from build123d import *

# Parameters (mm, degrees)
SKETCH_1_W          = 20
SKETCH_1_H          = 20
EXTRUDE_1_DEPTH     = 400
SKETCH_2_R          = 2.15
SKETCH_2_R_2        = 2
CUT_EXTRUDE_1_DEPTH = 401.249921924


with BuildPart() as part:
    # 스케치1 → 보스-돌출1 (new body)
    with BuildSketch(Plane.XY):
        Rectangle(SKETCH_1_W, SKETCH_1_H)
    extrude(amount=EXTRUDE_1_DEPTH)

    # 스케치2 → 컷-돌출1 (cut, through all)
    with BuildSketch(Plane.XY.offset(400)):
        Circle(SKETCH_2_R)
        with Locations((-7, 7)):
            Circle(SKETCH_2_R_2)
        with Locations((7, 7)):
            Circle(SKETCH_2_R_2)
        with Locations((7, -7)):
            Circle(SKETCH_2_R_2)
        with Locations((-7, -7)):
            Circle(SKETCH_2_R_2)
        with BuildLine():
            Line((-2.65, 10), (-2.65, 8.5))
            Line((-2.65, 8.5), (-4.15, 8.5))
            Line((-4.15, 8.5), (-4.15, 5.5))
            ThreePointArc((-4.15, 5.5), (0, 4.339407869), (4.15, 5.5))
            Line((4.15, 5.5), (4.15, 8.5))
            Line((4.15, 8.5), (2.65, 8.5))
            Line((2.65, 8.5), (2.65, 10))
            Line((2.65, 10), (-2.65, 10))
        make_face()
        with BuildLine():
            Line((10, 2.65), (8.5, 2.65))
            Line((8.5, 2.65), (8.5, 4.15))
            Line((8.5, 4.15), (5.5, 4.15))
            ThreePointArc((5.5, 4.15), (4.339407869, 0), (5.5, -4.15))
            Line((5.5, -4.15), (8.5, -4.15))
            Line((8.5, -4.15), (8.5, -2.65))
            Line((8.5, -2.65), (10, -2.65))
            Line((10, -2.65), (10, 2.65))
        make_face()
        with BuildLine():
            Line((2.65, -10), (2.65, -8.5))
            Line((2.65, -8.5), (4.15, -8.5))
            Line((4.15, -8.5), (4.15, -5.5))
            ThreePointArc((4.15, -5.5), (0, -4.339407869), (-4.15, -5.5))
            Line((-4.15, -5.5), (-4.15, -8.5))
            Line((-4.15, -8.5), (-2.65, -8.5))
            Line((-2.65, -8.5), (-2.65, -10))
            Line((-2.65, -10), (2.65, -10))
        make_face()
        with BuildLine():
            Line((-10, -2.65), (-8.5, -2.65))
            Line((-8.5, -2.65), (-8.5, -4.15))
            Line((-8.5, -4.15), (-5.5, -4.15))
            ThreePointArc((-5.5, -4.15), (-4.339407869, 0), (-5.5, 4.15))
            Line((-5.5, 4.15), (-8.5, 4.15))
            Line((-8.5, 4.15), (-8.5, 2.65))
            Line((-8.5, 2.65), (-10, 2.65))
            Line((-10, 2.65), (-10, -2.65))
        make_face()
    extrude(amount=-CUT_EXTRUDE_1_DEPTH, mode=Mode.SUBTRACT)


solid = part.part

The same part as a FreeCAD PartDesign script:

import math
import FreeCAD as App
import Part
import Sketcher


def add_polygon(sketch, points):
    """Adds a closed chain of lines whose ends are joined by coincident constraints."""
    first, n = sketch.GeometryCount, len(points)
    for a, b in zip(points, points[1:] + points[:1]):
        sketch.addGeometry(Part.LineSegment(App.Vector(*a, 0), App.Vector(*b, 0)), False)
    for i in range(n):
        sketch.addConstraint(Sketcher.Constraint("Coincident", first + i, 2, first + (i + 1) % n, 1))

doc = App.newDocument("Part")
body = doc.addObject("PartDesign::Body", "Body")

# Sketch on XY plane
sketch1 = body.newObject("Sketcher::SketchObject", "Sketch")
sketch1.AttachmentSupport = (doc.getObject("XY_Plane"), [""])
sketch1.MapMode = "FlatFace"
add_polygon(sketch1, [(-10, 10), (-10, -10), (10, -10), (10, 10)])  # lines 0-3
sketch1.addConstraint([
    Sketcher.Constraint("Vertical", 0),
    Sketcher.Constraint("Horizontal", 1),
    Sketcher.Constraint("Vertical", 2),
    Sketcher.Constraint("Horizontal", 3),
    Sketcher.Constraint("Symmetric", 0, 2, 2, 2, -1, 1),
    Sketcher.Constraint("Equal", 3, 0),
    Sketcher.Constraint("DistanceX", 1, 1, 1, 2, 20.0),
])
pad1 = body.newObject("PartDesign::Pad", "Pad")
pad1.Profile = sketch1
pad1.Length = 400

# Sketch on XY plane
sketch2 = body.newObject("Sketcher::SketchObject", "Sketch001")
sketch2.AttachmentSupport = (doc.getObject("XY_Plane"), [""])
sketch2.MapMode = "FlatFace"
sketch2.AttachmentOffset = App.Placement(App.Vector(0, 0, 400), App.Rotation())
sketch2.addGeometry([
    Part.Circle(App.Vector(0, 0, 0), App.Vector(0, 0, 1), 2.1),  # 0
    Part.Circle(App.Vector(-7, 7, 0), App.Vector(0, 0, 1), 2),  # 1
    Part.Circle(App.Vector(7, 7, 0), App.Vector(0, 0, 1), 2),  # 2
    Part.Circle(App.Vector(7, -7, 0), App.Vector(0, 0, 1), 2),  # 3
    Part.Circle(App.Vector(-7, -7, 0), App.Vector(0, 0, 1), 2),  # 4
    Part.LineSegment(App.Vector(-2.6, 10, 0), App.Vector(-2.6, 8.5, 0)),  # 5
    Part.LineSegment(App.Vector(-2.6, 8.5, 0), App.Vector(-4.2, 8.5, 0)),  # 6
    Part.LineSegment(App.Vector(-4.2, 8.5, 0), App.Vector(-4.2, 5.5, 0)),  # 7
    Part.ArcOfCircle(Part.Circle(App.Vector(0, 12.3, 0), App.Vector(0, 0, 1), 8), math.radians(-121), math.radians(-59)),  # 8
    Part.LineSegment(App.Vector(4.2, 5.5, 0), App.Vector(4.2, 8.5, 0)),  # 9
    Part.LineSegment(App.Vector(4.2, 8.5, 0), App.Vector(2.6, 8.5, 0)),  # 10
    Part.LineSegment(App.Vector(2.6, 8.5, 0), App.Vector(2.6, 10, 0)),  # 11
    Part.LineSegment(App.Vector(2.6, 10, 0), App.Vector(-2.6, 10, 0)),  # 12
    Part.LineSegment(App.Vector(10, 2.6, 0), App.Vector(8.5, 2.6, 0)),  # 13
    Part.LineSegment(App.Vector(8.5, 2.6, 0), App.Vector(8.5, 4.2, 0)),  # 14
    Part.LineSegment(App.Vector(8.5, 4.2, 0), App.Vector(5.5, 4.2, 0)),  # 15
    Part.ArcOfCircle(Part.Circle(App.Vector(12.3, 0, 0), App.Vector(0, 0, 1), 8), math.radians(149), math.radians(211)),  # 16
    Part.LineSegment(App.Vector(5.5, -4.2, 0), App.Vector(8.5, -4.2, 0)),  # 17
    Part.LineSegment(App.Vector(8.5, -4.2, 0), App.Vector(8.5, -2.6, 0)),  # 18
    Part.LineSegment(App.Vector(8.5, -2.6, 0), App.Vector(10, -2.6, 0)),  # 19
    Part.LineSegment(App.Vector(10, -2.6, 0), App.Vector(10, 2.6, 0)),  # 20
    Part.LineSegment(App.Vector(2.6, -10, 0), App.Vector(2.6, -8.5, 0)),  # 21
    Part.LineSegment(App.Vector(2.6, -8.5, 0), App.Vector(4.2, -8.5, 0)),  # 22
    Part.LineSegment(App.Vector(4.2, -8.5, 0), App.Vector(4.2, -5.5, 0)),  # 23
    Part.ArcOfCircle(Part.Circle(App.Vector(0, -12.3, 0), App.Vector(0, 0, 1), 8), math.radians(59), math.radians(121)),  # 24
    Part.LineSegment(App.Vector(-4.2, -5.5, 0), App.Vector(-4.2, -8.5, 0)),  # 25
    Part.LineSegment(App.Vector(-4.2, -8.5, 0), App.Vector(-2.6, -8.5, 0)),  # 26
    Part.LineSegment(App.Vector(-2.6, -8.5, 0), App.Vector(-2.6, -10, 0)),  # 27
    Part.LineSegment(App.Vector(-2.6, -10, 0), App.Vector(2.6, -10, 0)),  # 28
    Part.LineSegment(App.Vector(-10, -2.6, 0), App.Vector(-8.5, -2.6, 0)),  # 29
    Part.LineSegment(App.Vector(-8.5, -2.6, 0), App.Vector(-8.5, -4.2, 0)),  # 30
    Part.LineSegment(App.Vector(-8.5, -4.2, 0), App.Vector(-5.5, -4.2, 0)),  # 31
    Part.ArcOfCircle(Part.Circle(App.Vector(-12.3, 0, 0), App.Vector(0, 0, 1), 8), math.radians(-31), math.radians(31)),  # 32
    Part.LineSegment(App.Vector(-5.5, 4.2, 0), App.Vector(-8.5, 4.2, 0)),  # 33
    Part.LineSegment(App.Vector(-8.5, 4.2, 0), App.Vector(-8.5, 2.6, 0)),  # 34
    Part.LineSegment(App.Vector(-8.5, 2.6, 0), App.Vector(-10, 2.6, 0)),  # 35
    Part.LineSegment(App.Vector(-10, 2.6, 0), App.Vector(-10, -2.6, 0)),  # 36
], False)
sketch2.addConstraint([
    Sketcher.Constraint("Coincident", 5, 2, 6, 1),
    Sketcher.Constraint("Coincident", 6, 2, 7, 1),
    Sketcher.Constraint("Coincident", 7, 2, 8, 1),
    Sketcher.Constraint("Coincident", 8, 2, 9, 1),
    Sketcher.Constraint("Coincident", 9, 2, 10, 1),
    Sketcher.Constraint("Coincident", 10, 2, 11, 1),
    Sketcher.Constraint("Coincident", 11, 2, 12, 1),
    Sketcher.Constraint("Coincident", 12, 2, 5, 1),
    Sketcher.Constraint("Coincident", 13, 2, 14, 1),
    Sketcher.Constraint("Coincident", 14, 2, 15, 1),
    Sketcher.Constraint("Coincident", 15, 2, 16, 1),
    Sketcher.Constraint("Coincident", 16, 2, 17, 1),
    Sketcher.Constraint("Coincident", 17, 2, 18, 1),
    Sketcher.Constraint("Coincident", 18, 2, 19, 1),
    Sketcher.Constraint("Coincident", 19, 2, 20, 1),
    Sketcher.Constraint("Coincident", 20, 2, 13, 1),
    Sketcher.Constraint("Coincident", 21, 2, 22, 1),
    Sketcher.Constraint("Coincident", 22, 2, 23, 1),
    Sketcher.Constraint("Coincident", 23, 2, 24, 1),
    Sketcher.Constraint("Coincident", 24, 2, 25, 1),
    Sketcher.Constraint("Coincident", 25, 2, 26, 1),
    Sketcher.Constraint("Coincident", 26, 2, 27, 1),
    Sketcher.Constraint("Coincident", 27, 2, 28, 1),
    Sketcher.Constraint("Coincident", 28, 2, 21, 1),
    Sketcher.Constraint("Coincident", 29, 2, 30, 1),
    Sketcher.Constraint("Coincident", 30, 2, 31, 1),
    Sketcher.Constraint("Coincident", 31, 2, 32, 1),
    Sketcher.Constraint("Coincident", 32, 2, 33, 1),
    Sketcher.Constraint("Coincident", 33, 2, 34, 1),
    Sketcher.Constraint("Coincident", 34, 2, 35, 1),
    Sketcher.Constraint("Coincident", 35, 2, 36, 1),
    Sketcher.Constraint("Coincident", 36, 2, 29, 1),
    Sketcher.Constraint("Vertical", 5),
    Sketcher.Constraint("Horizontal", 6),
    Sketcher.Constraint("Vertical", 7),
    Sketcher.Constraint("Vertical", 9),
    Sketcher.Constraint("Horizontal", 10),
    Sketcher.Constraint("Vertical", 11),
    Sketcher.Constraint("Horizontal", 12),
    Sketcher.Constraint("Horizontal", 13),
    Sketcher.Constraint("Vertical", 14),
    Sketcher.Constraint("Horizontal", 15),
    Sketcher.Constraint("Horizontal", 17),
    Sketcher.Constraint("Vertical", 18),
    Sketcher.Constraint("Horizontal", 19),
    Sketcher.Constraint("Vertical", 20),
    Sketcher.Constraint("Vertical", 21),
    Sketcher.Constraint("Horizontal", 22),
    Sketcher.Constraint("Vertical", 23),
    Sketcher.Constraint("Vertical", 25),
    Sketcher.Constraint("Horizontal", 26),
    Sketcher.Constraint("Vertical", 27),
    Sketcher.Constraint("Horizontal", 28),
    Sketcher.Constraint("Horizontal", 29),
    Sketcher.Constraint("Vertical", 30),
    Sketcher.Constraint("Horizontal", 31),
    Sketcher.Constraint("Horizontal", 33),
    Sketcher.Constraint("Vertical", 34),
    Sketcher.Constraint("Horizontal", 35),
    Sketcher.Constraint("Vertical", 36),
    Sketcher.Constraint("Coincident", 0, 3, -1, 1),
    Sketcher.Constraint("Equal", 1, 2),
    Sketcher.Constraint("Equal", 2, 3),
    Sketcher.Constraint("Equal", 3, 4),
    Sketcher.Constraint("Equal", 8, 16),
    Sketcher.Constraint("Equal", 16, 24),
    Sketcher.Constraint("Equal", 24, 32),
    Sketcher.Constraint("Symmetric", 1, 3, 3, 3, -1, 1),
    Sketcher.Constraint("Symmetric", 2, 3, 4, 3, -1, 1),
    Sketcher.Constraint("Symmetric", 8, 3, 24, 3, -1, 1),
    Sketcher.Constraint("Symmetric", 16, 3, 32, 3, -1, 1),
    Sketcher.Constraint("Symmetric", 5, 2, 21, 2, -1, 1),
    Sketcher.Constraint("Symmetric", 9, 2, 25, 2, -1, 1),
    Sketcher.Constraint("Symmetric", 11, 2, 27, 2, -1, 1),
    Sketcher.Constraint("Symmetric", 13, 2, 29, 2, -1, 1),
    Sketcher.Constraint("Symmetric", 17, 2, 33, 2, -1, 1),
    Sketcher.Constraint("Symmetric", 19, 2, 35, 2, -1, 1),
    Sketcher.Constraint("Symmetric", 1, 3, 2, 3, -2),
    Sketcher.Constraint("Symmetric", 7, 2, 8, 2, -2),
    Sketcher.Constraint("Symmetric", 5, 2, 10, 2, -2),
    Sketcher.Constraint("Symmetric", 18, 2, 29, 2, -2),
    Sketcher.Constraint("Symmetric", 16, 2, 31, 2, -2),
    Sketcher.Constraint("Horizontal", 23, 2, 24, 2),
    Sketcher.Constraint("Horizontal", 15, 2, 32, 2),
    Sketcher.Constraint("Equal", 10, 13),
    Sketcher.Constraint("Equal", 35, 5),
    Sketcher.Constraint("Equal", 33, 7),
    Sketcher.Constraint("Equal", 11, 14),
    Sketcher.Constraint("Equal", 28, 20),
    Sketcher.Constraint("Diameter", 1, 4.0),
    Sketcher.Constraint("Radius", 8, 8.0),
    Sketcher.Constraint("Diameter", 0, 4.3),
    Sketcher.Constraint("DistanceX", 15, 2, 15, 1, 3.0),
    Sketcher.Constraint("DistanceX", 6, 2, 6, 1, 1.5),
    Sketcher.Constraint("DistanceX", 12, 2, 12, 1, 5.3),
    Sketcher.Constraint("DistanceX", 1, 3, -1, 1, 7.0),
    Sketcher.Constraint("DistanceY", -1, 1, 1, 3, 7.0),
    Sketcher.Constraint("DistanceY", -1, 1, 11, 2, 10.0),
    Sketcher.Constraint("DistanceX", -1, 1, 19, 2, 10.0),
])
pocket1 = body.newObject("PartDesign::Pocket", "Pocket")
pocket1.Profile = sketch2
pocket1.Type = "ThroughAll"

doc.recompute()
